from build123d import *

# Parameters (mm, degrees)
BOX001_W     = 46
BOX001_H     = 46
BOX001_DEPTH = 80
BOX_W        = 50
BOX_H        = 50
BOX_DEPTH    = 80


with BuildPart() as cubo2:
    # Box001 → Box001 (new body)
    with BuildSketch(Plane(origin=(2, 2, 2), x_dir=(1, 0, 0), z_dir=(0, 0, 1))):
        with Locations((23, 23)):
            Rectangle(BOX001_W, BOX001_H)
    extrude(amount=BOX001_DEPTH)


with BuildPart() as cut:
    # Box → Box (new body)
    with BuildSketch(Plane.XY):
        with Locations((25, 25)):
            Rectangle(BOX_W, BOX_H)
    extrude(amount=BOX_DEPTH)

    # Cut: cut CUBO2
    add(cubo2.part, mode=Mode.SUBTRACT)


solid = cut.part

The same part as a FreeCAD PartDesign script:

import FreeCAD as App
import Part
import Sketcher

doc = App.newDocument("Part")
body = doc.addObject("PartDesign::Body", "Body")

# Sketch on XY plane
sketch1 = body.newObject("Sketcher::SketchObject", "Sketch")
sketch1.AttachmentSupport = (doc.getObject("XY_Plane"), [""])
sketch1.MapMode = "FlatFace"
sketch1.AttachmentOffset = App.Placement(App.Vector(0, 0, 2), App.Rotation())
sketch1.addGeometry([
    Part.LineSegment(App.Vector(2, 48, 0), App.Vector(2, 2, 0)),
    Part.LineSegment(App.Vector(2, 2, 0), App.Vector(48, 2, 0)),
    Part.LineSegment(App.Vector(48, 2, 0), App.Vector(48, 48, 0)),
    Part.LineSegment(App.Vector(48, 48, 0), App.Vector(2, 48, 0)),
], False)
sketch1.addConstraint([
    Sketcher.Constraint("Coincident", 0, 2, 1, 1),
    Sketcher.Constraint("Coincident", 1, 2, 2, 1),
    Sketcher.Constraint("Coincident", 2, 2, 3, 1),
    Sketcher.Constraint("Coincident", 3, 2, 0, 1),
    Sketcher.Constraint("Vertical", 0),
    Sketcher.Constraint("Horizontal", 1),
    Sketcher.Constraint("Vertical", 2),
    Sketcher.Constraint("Horizontal", 3),
    Sketcher.Constraint("Equal", 3, 0),
    Sketcher.Constraint("DistanceX", 1, 1, 1, 2, 46.0),
    Sketcher.Constraint("DistanceX", -1, 1, 0, 2, 2.0),
    Sketcher.Constraint("DistanceY", -1, 1, 0, 2, 2.0),
])
pad1 = body.newObject("PartDesign::Pad", "Pad")
pad1.Profile = sketch1
pad1.Length = 80
body2 = doc.addObject("PartDesign::Body", "Body001")

# Sketch on XY plane
sketch2 = body2.newObject("Sketcher::SketchObject", "Sketch001")
sketch2.AttachmentSupport = (doc.getObject("XY_Plane001"), [""])
sketch2.MapMode = "FlatFace"
sketch2.addGeometry([
    Part.LineSegment(App.Vector(0, 50, 0), App.Vector(0, 0, 0)),
    Part.LineSegment(App.Vector(0, 0, 0), App.Vector(50, 0, 0)),
    Part.LineSegment(App.Vector(50, 0, 0), App.Vector(50, 50, 0)),
    Part.LineSegment(App.Vector(50, 50, 0), App.Vector(0, 50, 0)),
], False)
sketch2.addConstraint([
    Sketcher.Constraint("Coincident", 0, 2, 1, 1),
    Sketcher.Constraint("Coincident", 1, 2, 2, 1),
    Sketcher.Constraint("Coincident", 2, 2, 3, 1),
    Sketcher.Constraint("Coincident", 3, 2, 0, 1),
    Sketcher.Constraint("Vertical", 0),
    Sketcher.Constraint("Horizontal", 1),
    Sketcher.Constraint("Vertical", 2),
    Sketcher.Constraint("Horizontal", 3),
    Sketcher.Constraint("Coincident", 0, 2, -1, 1),
    Sketcher.Constraint("Equal", 3, 0),
    Sketcher.Constraint("DistanceX", 1, 1, 1, 2, 50.0),
])
pad2 = body2.newObject("PartDesign::Pad", "Pad001")
pad2.Profile = sketch2
pad2.Length = 80
doc.recompute()

boolean = body2.newObject("PartDesign::Boolean", "Boolean")
boolean.Type = "Cut"
boolean.addObjects([body])

doc.recompute()
